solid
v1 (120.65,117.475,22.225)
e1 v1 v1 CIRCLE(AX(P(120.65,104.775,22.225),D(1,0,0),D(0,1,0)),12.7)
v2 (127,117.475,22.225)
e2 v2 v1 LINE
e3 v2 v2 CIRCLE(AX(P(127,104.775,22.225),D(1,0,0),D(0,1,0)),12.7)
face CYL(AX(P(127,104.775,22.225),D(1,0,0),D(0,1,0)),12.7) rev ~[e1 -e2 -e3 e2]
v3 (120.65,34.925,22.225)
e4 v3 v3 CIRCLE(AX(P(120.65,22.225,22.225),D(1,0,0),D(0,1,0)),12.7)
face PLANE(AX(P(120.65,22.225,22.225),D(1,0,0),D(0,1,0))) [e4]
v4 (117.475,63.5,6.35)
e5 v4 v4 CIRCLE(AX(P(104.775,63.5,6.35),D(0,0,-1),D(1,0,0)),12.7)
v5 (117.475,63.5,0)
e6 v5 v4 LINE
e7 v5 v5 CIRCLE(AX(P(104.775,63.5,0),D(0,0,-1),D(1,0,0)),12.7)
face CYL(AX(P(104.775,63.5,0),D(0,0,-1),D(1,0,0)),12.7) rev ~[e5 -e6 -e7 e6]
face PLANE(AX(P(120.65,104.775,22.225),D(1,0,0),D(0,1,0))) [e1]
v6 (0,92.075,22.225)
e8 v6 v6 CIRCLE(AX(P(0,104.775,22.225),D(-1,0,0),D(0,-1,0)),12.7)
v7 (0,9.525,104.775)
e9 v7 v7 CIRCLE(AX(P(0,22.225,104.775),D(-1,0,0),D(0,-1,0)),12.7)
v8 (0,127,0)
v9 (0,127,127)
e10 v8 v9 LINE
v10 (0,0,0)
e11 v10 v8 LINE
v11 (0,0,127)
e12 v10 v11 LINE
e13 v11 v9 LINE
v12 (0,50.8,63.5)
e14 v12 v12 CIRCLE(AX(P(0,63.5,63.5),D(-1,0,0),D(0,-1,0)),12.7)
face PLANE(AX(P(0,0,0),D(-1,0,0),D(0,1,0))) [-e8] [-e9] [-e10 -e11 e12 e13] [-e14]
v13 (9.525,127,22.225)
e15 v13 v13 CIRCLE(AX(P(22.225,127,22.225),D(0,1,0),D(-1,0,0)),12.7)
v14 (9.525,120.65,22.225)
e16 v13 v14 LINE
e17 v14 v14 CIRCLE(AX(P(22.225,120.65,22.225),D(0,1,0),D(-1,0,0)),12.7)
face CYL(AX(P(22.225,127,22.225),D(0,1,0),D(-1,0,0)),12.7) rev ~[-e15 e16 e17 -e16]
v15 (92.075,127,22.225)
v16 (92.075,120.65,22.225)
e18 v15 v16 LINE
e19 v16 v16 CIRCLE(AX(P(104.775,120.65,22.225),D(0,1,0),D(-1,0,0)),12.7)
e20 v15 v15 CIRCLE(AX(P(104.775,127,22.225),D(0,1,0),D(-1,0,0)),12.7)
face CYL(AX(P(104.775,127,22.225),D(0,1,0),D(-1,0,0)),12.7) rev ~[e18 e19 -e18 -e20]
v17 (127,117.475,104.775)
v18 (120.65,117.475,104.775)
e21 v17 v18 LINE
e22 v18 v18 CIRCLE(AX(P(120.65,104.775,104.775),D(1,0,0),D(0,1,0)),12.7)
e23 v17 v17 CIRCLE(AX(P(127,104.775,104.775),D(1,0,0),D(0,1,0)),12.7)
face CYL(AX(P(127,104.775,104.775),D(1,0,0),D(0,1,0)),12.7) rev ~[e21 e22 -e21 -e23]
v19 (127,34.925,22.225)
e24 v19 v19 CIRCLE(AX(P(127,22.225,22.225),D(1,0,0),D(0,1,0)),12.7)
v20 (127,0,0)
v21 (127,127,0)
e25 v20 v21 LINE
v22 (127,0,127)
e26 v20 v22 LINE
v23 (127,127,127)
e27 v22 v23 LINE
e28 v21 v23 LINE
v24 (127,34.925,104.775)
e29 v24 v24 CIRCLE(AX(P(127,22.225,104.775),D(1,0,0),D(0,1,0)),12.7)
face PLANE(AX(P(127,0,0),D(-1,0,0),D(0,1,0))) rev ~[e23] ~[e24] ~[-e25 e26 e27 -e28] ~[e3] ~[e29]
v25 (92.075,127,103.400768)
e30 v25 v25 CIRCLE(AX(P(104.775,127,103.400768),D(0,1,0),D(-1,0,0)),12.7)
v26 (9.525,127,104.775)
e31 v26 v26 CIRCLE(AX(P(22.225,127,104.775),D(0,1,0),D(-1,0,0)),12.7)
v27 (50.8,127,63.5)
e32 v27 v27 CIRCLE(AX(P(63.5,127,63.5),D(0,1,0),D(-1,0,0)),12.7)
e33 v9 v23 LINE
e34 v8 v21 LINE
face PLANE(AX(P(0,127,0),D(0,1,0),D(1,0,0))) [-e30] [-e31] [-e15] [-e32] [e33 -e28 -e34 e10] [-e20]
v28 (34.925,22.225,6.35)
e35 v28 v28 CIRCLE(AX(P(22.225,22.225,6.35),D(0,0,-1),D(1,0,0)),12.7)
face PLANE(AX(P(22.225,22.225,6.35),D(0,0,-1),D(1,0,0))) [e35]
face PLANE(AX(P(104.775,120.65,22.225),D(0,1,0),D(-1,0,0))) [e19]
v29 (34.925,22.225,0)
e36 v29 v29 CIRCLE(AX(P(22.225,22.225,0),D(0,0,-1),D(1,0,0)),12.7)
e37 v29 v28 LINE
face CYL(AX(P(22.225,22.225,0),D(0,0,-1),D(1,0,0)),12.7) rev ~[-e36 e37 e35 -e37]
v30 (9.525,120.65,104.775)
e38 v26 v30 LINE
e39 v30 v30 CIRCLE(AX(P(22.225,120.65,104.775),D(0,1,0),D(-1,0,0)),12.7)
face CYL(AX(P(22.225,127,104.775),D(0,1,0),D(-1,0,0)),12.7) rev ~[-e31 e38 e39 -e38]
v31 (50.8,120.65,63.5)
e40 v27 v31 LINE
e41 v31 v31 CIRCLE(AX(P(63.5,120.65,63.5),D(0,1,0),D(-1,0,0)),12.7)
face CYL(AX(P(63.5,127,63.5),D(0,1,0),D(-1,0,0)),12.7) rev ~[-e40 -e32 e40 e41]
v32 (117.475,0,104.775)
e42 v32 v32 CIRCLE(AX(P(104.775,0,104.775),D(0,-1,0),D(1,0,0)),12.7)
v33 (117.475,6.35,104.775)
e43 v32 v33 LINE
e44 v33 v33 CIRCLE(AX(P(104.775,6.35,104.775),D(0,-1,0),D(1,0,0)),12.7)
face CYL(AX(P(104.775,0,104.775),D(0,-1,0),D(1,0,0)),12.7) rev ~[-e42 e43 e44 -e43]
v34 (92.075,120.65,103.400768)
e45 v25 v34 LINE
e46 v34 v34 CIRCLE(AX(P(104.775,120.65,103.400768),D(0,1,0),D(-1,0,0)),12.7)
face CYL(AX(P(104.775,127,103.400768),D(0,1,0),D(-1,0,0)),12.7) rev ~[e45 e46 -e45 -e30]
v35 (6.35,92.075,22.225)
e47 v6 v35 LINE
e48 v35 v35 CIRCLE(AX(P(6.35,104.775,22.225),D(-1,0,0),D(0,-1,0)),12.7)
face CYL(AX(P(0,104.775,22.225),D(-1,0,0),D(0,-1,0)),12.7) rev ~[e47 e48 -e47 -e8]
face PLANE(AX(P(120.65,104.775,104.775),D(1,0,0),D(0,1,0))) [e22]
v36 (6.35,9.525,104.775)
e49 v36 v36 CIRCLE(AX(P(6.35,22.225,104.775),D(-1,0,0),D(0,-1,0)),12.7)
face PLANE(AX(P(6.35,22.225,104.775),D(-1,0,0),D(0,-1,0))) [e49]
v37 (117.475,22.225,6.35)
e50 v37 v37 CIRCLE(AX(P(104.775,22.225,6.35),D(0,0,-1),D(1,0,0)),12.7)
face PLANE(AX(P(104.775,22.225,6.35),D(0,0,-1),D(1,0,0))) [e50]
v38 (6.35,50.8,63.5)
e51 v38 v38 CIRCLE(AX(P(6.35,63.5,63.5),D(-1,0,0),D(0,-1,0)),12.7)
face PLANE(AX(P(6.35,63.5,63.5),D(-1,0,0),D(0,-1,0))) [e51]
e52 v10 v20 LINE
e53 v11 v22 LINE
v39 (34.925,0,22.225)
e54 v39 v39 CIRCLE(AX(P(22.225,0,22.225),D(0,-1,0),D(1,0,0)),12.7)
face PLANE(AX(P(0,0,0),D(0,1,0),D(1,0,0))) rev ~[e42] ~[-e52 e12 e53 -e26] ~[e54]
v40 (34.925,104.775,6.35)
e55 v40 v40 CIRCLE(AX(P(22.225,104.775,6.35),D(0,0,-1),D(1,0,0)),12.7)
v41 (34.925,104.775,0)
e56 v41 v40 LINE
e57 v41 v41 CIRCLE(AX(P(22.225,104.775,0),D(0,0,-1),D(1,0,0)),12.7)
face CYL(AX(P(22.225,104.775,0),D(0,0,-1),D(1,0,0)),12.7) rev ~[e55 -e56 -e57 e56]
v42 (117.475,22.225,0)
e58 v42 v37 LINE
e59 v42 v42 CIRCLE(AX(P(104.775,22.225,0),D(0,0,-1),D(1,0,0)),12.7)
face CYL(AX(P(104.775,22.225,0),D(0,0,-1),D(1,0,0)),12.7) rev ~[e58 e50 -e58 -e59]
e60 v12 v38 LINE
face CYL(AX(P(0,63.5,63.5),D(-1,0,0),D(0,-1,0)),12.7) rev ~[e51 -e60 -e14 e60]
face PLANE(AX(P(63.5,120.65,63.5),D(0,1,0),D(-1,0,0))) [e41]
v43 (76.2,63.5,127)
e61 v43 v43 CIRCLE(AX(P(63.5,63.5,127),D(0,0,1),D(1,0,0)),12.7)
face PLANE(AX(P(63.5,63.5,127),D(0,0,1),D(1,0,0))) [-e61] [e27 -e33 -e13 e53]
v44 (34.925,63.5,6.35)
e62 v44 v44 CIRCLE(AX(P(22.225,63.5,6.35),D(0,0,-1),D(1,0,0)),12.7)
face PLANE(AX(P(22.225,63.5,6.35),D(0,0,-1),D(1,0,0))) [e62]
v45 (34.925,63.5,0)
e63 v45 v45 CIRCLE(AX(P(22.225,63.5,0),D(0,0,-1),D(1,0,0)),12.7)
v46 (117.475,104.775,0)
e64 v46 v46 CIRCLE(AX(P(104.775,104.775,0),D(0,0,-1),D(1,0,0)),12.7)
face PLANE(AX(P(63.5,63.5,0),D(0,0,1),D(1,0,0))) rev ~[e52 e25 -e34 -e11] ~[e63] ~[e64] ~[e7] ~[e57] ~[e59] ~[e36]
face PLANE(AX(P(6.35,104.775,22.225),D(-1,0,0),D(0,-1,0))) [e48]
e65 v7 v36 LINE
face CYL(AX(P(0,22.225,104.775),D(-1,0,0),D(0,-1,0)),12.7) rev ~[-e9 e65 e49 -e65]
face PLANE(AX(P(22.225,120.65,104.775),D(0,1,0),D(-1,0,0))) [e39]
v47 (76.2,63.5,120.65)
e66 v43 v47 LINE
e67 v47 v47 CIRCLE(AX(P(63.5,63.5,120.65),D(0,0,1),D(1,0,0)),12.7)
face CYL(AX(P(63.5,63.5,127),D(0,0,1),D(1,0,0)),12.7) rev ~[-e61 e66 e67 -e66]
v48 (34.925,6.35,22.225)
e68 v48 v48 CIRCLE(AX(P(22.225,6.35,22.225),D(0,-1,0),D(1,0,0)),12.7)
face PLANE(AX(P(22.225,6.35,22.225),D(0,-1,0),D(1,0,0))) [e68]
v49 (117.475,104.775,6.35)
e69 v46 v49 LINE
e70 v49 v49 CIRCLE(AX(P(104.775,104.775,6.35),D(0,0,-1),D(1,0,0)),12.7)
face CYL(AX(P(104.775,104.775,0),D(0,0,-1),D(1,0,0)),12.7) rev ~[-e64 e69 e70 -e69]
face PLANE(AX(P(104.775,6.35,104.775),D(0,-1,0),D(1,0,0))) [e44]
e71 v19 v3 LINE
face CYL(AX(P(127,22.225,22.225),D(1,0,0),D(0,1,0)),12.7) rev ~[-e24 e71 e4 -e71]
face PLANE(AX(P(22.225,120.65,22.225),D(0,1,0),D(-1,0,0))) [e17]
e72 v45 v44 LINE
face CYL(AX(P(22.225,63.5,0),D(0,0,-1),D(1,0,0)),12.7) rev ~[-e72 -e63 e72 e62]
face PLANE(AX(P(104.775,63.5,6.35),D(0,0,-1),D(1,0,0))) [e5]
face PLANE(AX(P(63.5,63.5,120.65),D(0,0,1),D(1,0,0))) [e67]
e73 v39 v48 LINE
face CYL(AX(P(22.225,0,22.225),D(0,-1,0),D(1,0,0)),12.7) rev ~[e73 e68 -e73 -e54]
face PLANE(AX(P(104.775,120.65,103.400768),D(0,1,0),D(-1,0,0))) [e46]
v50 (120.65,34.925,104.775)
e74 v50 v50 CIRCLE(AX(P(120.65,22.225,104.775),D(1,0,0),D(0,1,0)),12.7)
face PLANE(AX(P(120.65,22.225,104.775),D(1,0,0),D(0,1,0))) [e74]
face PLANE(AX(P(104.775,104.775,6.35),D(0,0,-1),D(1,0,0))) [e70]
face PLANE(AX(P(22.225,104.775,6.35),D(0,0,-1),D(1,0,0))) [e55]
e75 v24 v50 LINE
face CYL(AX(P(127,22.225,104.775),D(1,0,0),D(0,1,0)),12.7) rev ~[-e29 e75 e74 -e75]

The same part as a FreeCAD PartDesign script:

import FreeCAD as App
import Part
import Sketcher
Q = App.Units.Quantity


def add_polygon(sketch, points):
    """Adds a closed chain of lines whose ends are joined by coincident constraints."""
    first, n = sketch.GeometryCount, len(points)
    for a, b in zip(points, points[1:] + points[:1]):
        sketch.addGeometry(Part.LineSegment(App.Vector(*a, 0), App.Vector(*b, 0)), False)
    for i in range(n):
        sketch.addConstraint(Sketcher.Constraint("Coincident", first + i, 2, first + (i + 1) % n, 1))

doc = App.newDocument("Part")
body = doc.addObject("PartDesign::Body", "Body")

# Sketch on XY plane
sketch1 = doc.addObject("Sketcher::SketchObject", "Sketch")
body.addObject(sketch1)
sketch1.AttachmentSupport = (doc.XY_Plane, [""])
sketch1.MapMode = "FlatFace"
add_polygon(sketch1, [(0, 127), (0, 0), (127, 0), (127, 127)])  # lines 0-3
sketch1.addConstraint([
    Sketcher.Constraint("Vertical", 0),
    Sketcher.Constraint("Horizontal", 1),
    Sketcher.Constraint("Vertical", 2),
    Sketcher.Constraint("Horizontal", 3),
    Sketcher.Constraint("Coincident", 0, 2, -1, 1),
    Sketcher.Constraint("Equal", 3, 0),
    Sketcher.Constraint("DistanceX", 1, 1, 1, 2, Q("5 in")),
])
pad1 = doc.addObject("PartDesign::Pad", "Pad")
body.addObject(pad1)
pad1.Profile = sketch1
pad1.Length = Q("5 in")

# Sketch on XY plane
sketch2 = doc.addObject("Sketcher::SketchObject", "Sketch001")
body.addObject(sketch2)
sketch2.AttachmentSupport = (doc.XY_Plane, [""])
sketch2.MapMode = "FlatFace"
sketch2.AttachmentOffset = App.Placement(App.Vector(0, 0, 5 * 25.4), App.Rotation())
sketch2.addGeometry(Part.Circle(App.Vector(64, 64, 0), App.Vector(0, 0, 1), 13), False)
sketch2.addConstraint([
    Sketcher.Constraint("Diameter", 0, Q("1 in")),
    Sketcher.Constraint("DistanceX", -1, 1, 0, 3, Q("2.5 in")),
    Sketcher.Constraint("DistanceY", -1, 1, 0, 3, Q("2.5 in")),
])
pocket1 = doc.addObject("PartDesign::Pocket", "Pocket")
body.addObject(pocket1)
pocket1.Profile = sketch2
pocket1.Length = Q("0.25 in")

# Sketch on XZ plane
sketch3 = doc.addObject("Sketcher::SketchObject", "Sketch002")
body.addObject(sketch3)
sketch3.AttachmentSupport = (doc.XZ_Plane, [""])
sketch3.MapMode = "FlatFace"
sketch3.addGeometry([
    Part.Circle(App.Vector(22, 22, 0), App.Vector(0, 0, 1), 13),
    Part.Circle(App.Vector(105, 105, 0), App.Vector(0, 0, 1), 13),
], False)
sketch3.addConstraint([
    Sketcher.Constraint("Equal", 0, 1),
    Sketcher.Constraint("Diameter", 0, Q("1 in")),
    Sketcher.Constraint("DistanceX", 0, 3, 1, 3, Q("3.25 in")),
    Sketcher.Constraint("DistanceY", 0, 3, 1, 3, Q("3.25 in")),
    Sketcher.Constraint("DistanceX", -1, 1, 0, 3, Q("0.875 in")),
    Sketcher.Constraint("DistanceY", -1, 1, 0, 3, Q("0.875 in")),
])
pocket2 = doc.addObject("PartDesign::Pocket", "Pocket001")
body.addObject(pocket2)
pocket2.Profile = sketch3
pocket2.Length = Q("0.25 in")

# Sketch on YZ plane
sketch4 = doc.addObject("Sketcher::SketchObject", "Sketch003")
body.addObject(sketch4)
sketch4.AttachmentSupport = (doc.YZ_Plane, [""])
sketch4.MapMode = "FlatFace"
sketch4.addGeometry([
    Part.Circle(App.Vector(105, 22, 0), App.Vector(0, 0, 1), 13),
    Part.Circle(App.Vector(64, 64, 0), App.Vector(0, 0, 1), 13),
    Part.Circle(App.Vector(22, 105, 0), App.Vector(0, 0, 1), 13),
], False)
sketch4.addConstraint([
    Sketcher.Constraint("Equal", 0, 1),
    Sketcher.Constraint("Equal", 1, 2),
    Sketcher.Constraint("Diameter", 0, Q("1 in")),
    Sketcher.Constraint("DistanceX", -1, 1, 1, 3, Q("2.5 in")),
    Sketcher.Constraint("DistanceY", -1, 1, 1, 3, Q("2.5 in")),
    Sketcher.Constraint("DistanceX", 2, 3, 0, 3, Q("3.25 in")),
    Sketcher.Constraint("DistanceY", 0, 3, 2, 3, Q("3.25 in")),
    Sketcher.Constraint("DistanceX", -1, 1, 0, 3, Q("4.125 in")),
    Sketcher.Constraint("DistanceY", -1, 1, 0, 3, Q("0.875 in")),
])
pocket3 = doc.addObject("PartDesign::Pocket", "Pocket002")
body.addObject(pocket3)
pocket3.Profile = sketch4
pocket3.Length = Q("0.25 in")
pocket3.Reversed = True

# Sketch on YZ plane
sketch5 = doc.addObject("Sketcher::SketchObject", "Sketch004")
body.addObject(sketch5)
sketch5.AttachmentSupport = (doc.YZ_Plane, [""])
sketch5.MapMode = "FlatFace"
sketch5.AttachmentOffset = App.Placement(App.Vector(0, 0, 5 * 25.4), App.Rotation())
sketch5.addGeometry([
    Part.Circle(App.Vector(22, 105, 0), App.Vector(0, 0, 1), 13),
    Part.Circle(App.Vector(105, 105, 0), App.Vector(0, 0, 1), 13),
    Part.Circle(App.Vector(105, 22, 0), App.Vector(0, 0, 1), 13),
    Part.Circle(App.Vector(22, 22, 0), App.Vector(0, 0, 1), 13),
], False)
sketch5.addConstraint([
    Sketcher.Constraint("Equal", 0, 1),
    Sketcher.Constraint("Equal", 1, 2),
    Sketcher.Constraint("Equal", 2, 3),
    Sketcher.Constraint("Horizontal", 0, 3, 1, 3),
    Sketcher.Constraint("Horizontal", 2, 3, 3, 3),
    Sketcher.Constraint("Vertical", 1, 3, 2, 3),
    Sketcher.Constraint("Vertical", 0, 3, 3, 3),
    Sketcher.Constraint("Diameter", 0, Q("1 in")),
    Sketcher.Constraint("DistanceX", 0, 3, 1, 3, Q("3.25 in")),
    Sketcher.Constraint("DistanceY", 2, 3, 1, 3, Q("3.25 in")),
    Sketcher.Constraint("DistanceX", -1, 1, 0, 3, Q("0.875 in")),
    Sketcher.Constraint("DistanceY", -1, 1, 0, 3, Q("4.125 in")),
])
pocket4 = doc.addObject("PartDesign::Pocket", "Pocket003")
body.addObject(pocket4)
pocket4.Profile = sketch5
pocket4.Length = Q("0.25 in")

# Sketch on XY plane
sketch6 = doc.addObject("Sketcher::SketchObject", "Sketch005")
body.addObject(sketch6)
sketch6.AttachmentSupport = (doc.XY_Plane, [""])
sketch6.MapMode = "FlatFace"
sketch6.addGeometry([
    Part.Circle(App.Vector(22, 22, 0), App.Vector(0, 0, 1), 13),  # 0
    Part.Circle(App.Vector(22, 105, 0), App.Vector(0, 0, 1), 13),  # 1
    Part.Circle(App.Vector(105, 22, 0), App.Vector(0, 0, 1), 13),  # 2
    Part.Circle(App.Vector(105, 105, 0), App.Vector(0, 0, 1), 13),  # 3
    Part.Circle(App.Vector(22, 64, 0), App.Vector(0, 0, 1), 13),  # 4
    Part.Circle(App.Vector(105, 64, 0), App.Vector(0, 0, 1), 13),  # 5
], False)
sketch6.addConstraint([
    Sketcher.Constraint("Equal", 0, 1),
    Sketcher.Constraint("Equal", 1, 2),
    Sketcher.Constraint("Equal", 2, 3),
    Sketcher.Constraint("Equal", 3, 4),
    Sketcher.Constraint("Equal", 4, 5),
    Sketcher.Constraint("Horizontal", 0, 3, 2, 3),
    Sketcher.Constraint("Horizontal", 1, 3, 3, 3),
    Sketcher.Constraint("Horizontal", 4, 3, 5, 3),
    Sketcher.Constraint("Vertical", 0, 3, 1, 3),
    Sketcher.Constraint("Vertical", 2, 3, 3, 3),
    Sketcher.Constraint("Vertical", 1, 3, 4, 3),
    Sketcher.Constraint("Vertical", 3, 3, 5, 3),
    Sketcher.Constraint("Diameter", 0, Q("1 in")),
    Sketcher.Constraint("DistanceY", -1, 1, 4, 3, Q("2.5 in")),
    Sketcher.Constraint("DistanceY", 0, 3, 1, 3, Q("3.25 in")),
    Sketcher.Constraint("DistanceX", 0, 3, 2, 3, Q("3.25 in")),
    Sketcher.Constraint("DistanceX", -1, 1, 0, 3, Q("0.875 in")),
    Sketcher.Constraint("DistanceY", -1, 1, 0, 3, Q("0.875 in")),
])
pocket5 = doc.addObject("PartDesign::Pocket", "Pocket004")
body.addObject(pocket5)
pocket5.Profile = sketch6
pocket5.Length = Q("0.25 in")
pocket5.Reversed = True

# Sketch on XZ plane
sketch7 = doc.addObject("Sketcher::SketchObject", "Sketch006")
body.addObject(sketch7)
sketch7.AttachmentSupport = (doc.XZ_Plane, [""])
sketch7.MapMode = "FlatFace"
sketch7.AttachmentOffset = App.Placement(App.Vector(0, 0, -5 * 25.4), App.Rotation())
sketch7.addGeometry([
    Part.Circle(App.Vector(105, 103, 0), App.Vector(0, 0, 1), 13),  # 0
    Part.Circle(App.Vector(64, 64, 0), App.Vector(0, 0, 1), 13),  # 1
    Part.Circle(App.Vector(22, 105, 0), App.Vector(0, 0, 1), 13),  # 2
    Part.Circle(App.Vector(22, 22, 0), App.Vector(0, 0, 1), 13),  # 3
    Part.Circle(App.Vector(105, 22, 0), App.Vector(0, 0, 1), 13),  # 4
], False)
sketch7.addConstraint([
    Sketcher.Constraint("Equal", 0, 1),
    Sketcher.Constraint("Equal", 1, 2),
    Sketcher.Constraint("Equal", 2, 3),
    Sketcher.Constraint("Equal", 3, 4),
    Sketcher.Constraint("Horizontal", 3, 3, 4, 3),
    Sketcher.Constraint("Vertical", 2, 3, 3, 3),
    Sketcher.Constraint("Vertical", 0, 3, 4, 3),
    Sketcher.Constraint("Diameter", 0, Q("1 in")),
    Sketcher.Constraint("DistanceX", -1, 1, 1, 3, Q("2.5 in")),
    Sketcher.Constraint("DistanceY", -1, 1, 1, 3, Q("2.5 in")),
    Sketcher.Constraint("DistanceX", 2, 3, 0, 3, Q("3.25 in")),
    Sketcher.Constraint("DistanceY", 3, 3, 2, 3, Q("3.25 in")),
    Sketcher.Constraint("DistanceX", -1, 1, 0, 3, Q("4.125 in")),
    Sketcher.Constraint("DistanceY", -1, 1, 2, 3, Q("4.125 in")),
    Sketcher.Constraint("DistanceY", -1, 1, 0, 3, Q("103.400768 mm")),
])
pocket6 = doc.addObject("PartDesign::Pocket", "Pocket005")
body.addObject(pocket6)
pocket6.Profile = sketch7
pocket6.Length = Q("0.25 in")
pocket6.Reversed = True

doc.recompute()
